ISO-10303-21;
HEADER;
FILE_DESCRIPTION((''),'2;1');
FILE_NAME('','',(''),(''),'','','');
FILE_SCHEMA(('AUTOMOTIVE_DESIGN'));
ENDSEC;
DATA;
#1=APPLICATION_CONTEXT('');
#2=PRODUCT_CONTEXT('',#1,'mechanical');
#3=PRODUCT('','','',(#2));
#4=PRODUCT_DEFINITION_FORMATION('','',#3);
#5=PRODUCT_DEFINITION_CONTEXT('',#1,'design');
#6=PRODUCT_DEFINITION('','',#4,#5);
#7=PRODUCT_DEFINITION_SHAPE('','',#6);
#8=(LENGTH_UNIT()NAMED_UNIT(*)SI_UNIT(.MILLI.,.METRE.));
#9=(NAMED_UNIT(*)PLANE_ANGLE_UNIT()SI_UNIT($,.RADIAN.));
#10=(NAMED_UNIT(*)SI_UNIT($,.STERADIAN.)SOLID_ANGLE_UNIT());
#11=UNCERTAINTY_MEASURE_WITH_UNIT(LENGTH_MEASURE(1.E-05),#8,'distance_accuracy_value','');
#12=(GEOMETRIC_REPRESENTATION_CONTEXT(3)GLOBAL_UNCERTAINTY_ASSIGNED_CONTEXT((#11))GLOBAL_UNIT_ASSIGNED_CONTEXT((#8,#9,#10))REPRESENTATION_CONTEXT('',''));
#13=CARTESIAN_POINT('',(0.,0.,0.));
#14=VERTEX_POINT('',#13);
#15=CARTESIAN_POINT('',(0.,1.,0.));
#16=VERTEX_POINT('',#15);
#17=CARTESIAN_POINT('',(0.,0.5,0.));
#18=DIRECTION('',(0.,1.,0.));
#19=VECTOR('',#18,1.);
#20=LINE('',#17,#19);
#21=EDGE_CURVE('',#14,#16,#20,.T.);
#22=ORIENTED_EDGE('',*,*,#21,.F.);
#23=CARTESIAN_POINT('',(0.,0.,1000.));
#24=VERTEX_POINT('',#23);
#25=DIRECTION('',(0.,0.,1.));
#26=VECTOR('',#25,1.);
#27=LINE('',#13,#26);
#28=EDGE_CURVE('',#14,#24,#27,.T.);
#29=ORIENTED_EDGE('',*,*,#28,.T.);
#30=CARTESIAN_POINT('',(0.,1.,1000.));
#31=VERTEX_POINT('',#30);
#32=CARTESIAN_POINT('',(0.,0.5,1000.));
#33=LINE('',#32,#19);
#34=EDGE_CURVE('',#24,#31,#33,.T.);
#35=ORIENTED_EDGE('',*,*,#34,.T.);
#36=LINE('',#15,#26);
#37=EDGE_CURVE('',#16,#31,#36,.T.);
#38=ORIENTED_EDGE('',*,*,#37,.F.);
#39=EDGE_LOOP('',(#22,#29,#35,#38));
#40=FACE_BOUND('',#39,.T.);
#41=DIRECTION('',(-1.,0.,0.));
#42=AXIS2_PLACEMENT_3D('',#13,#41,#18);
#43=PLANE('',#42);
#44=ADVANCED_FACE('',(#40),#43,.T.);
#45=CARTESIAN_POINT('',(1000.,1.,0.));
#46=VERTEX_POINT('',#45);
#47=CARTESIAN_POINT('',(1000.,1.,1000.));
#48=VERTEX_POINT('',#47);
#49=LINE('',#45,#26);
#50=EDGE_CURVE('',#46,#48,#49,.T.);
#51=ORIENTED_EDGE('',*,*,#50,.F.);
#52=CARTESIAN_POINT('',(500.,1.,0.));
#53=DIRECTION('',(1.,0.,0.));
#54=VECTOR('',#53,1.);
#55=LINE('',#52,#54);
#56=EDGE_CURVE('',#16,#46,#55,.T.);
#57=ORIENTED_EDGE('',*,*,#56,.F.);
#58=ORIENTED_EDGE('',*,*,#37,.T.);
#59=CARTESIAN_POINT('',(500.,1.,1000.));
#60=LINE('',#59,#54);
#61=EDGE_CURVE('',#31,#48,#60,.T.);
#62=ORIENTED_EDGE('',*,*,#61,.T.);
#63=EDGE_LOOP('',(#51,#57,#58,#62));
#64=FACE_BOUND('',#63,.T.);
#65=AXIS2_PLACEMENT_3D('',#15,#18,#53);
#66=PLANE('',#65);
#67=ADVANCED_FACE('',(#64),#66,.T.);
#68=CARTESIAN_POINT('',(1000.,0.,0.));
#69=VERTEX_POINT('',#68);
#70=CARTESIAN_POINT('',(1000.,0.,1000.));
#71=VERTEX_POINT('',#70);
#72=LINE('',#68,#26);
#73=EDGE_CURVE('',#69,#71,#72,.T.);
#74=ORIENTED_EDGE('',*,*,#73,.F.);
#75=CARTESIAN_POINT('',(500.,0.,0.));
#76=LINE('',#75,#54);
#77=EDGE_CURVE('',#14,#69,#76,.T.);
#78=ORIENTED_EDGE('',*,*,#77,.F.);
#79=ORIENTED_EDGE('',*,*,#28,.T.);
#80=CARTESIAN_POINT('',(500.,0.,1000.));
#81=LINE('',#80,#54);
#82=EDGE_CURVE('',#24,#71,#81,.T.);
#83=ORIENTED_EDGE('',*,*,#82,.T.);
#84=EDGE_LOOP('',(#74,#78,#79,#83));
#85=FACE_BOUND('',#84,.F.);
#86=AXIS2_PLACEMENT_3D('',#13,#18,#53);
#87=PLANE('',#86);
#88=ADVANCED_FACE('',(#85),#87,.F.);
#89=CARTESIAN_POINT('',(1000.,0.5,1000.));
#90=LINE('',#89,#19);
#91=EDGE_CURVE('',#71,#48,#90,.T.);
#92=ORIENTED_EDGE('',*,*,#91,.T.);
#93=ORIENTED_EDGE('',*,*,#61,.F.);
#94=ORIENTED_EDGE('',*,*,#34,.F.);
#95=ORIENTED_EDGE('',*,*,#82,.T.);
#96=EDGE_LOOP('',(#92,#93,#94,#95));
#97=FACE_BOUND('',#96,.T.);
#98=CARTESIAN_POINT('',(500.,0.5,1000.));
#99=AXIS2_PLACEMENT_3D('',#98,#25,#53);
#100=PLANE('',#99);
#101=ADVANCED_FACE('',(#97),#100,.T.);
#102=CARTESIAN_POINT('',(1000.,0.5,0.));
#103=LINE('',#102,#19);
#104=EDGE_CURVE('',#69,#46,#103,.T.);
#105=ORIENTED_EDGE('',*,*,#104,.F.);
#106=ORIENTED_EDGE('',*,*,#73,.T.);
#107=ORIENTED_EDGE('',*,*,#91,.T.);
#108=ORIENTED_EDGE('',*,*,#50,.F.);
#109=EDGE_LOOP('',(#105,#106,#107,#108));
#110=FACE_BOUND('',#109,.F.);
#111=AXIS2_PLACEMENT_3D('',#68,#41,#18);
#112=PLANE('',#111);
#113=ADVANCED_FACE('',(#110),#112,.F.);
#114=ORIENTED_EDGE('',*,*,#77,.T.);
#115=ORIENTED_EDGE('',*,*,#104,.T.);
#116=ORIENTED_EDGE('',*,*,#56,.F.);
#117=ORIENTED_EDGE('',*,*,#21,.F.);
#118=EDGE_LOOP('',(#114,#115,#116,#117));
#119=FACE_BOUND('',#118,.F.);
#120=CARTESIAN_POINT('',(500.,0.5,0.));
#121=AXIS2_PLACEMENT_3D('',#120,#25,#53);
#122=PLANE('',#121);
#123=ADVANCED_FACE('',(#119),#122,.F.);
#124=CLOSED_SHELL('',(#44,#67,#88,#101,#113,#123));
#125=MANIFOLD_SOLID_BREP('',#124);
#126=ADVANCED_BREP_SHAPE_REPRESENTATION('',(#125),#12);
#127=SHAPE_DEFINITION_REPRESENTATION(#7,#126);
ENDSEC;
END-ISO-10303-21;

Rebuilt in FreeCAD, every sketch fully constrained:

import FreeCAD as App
import Part
import Sketcher
from FreeCAD import Vector
Q = App.Units.Quantity

doc = App.newDocument("Part")
body = doc.addObject("PartDesign::Body", "Body")

# Sketch on XY plane
sketch1 = body.newObject("Sketcher::SketchObject", "Sketch")
sketch1.AttachmentSupport = (doc.getObject("XY_Plane"), [""])
sketch1.MapMode = "FlatFace"
sketch1.addGeometry(Part.LineSegment(Vector(0, 1, 0), Vector(0, 0, 0)), False)
sketch1.addGeometry(Part.LineSegment(Vector(0, 0, 0), Vector(1000, 0, 0)), False)
sketch1.addGeometry(Part.LineSegment(Vector(1000, 0, 0), Vector(1000, 1, 0)), False)
sketch1.addGeometry(Part.LineSegment(Vector(1000, 1, 0), Vector(0, 1, 0)), False)
sketch1.addConstraint(Sketcher.Constraint("Coincident", 0, 2, 1, 1))
sketch1.addConstraint(Sketcher.Constraint("Coincident", 1, 2, 2, 1))
sketch1.addConstraint(Sketcher.Constraint("Coincident", 2, 2, 3, 1))
sketch1.addConstraint(Sketcher.Constraint("Coincident", 3, 2, 0, 1))
sketch1.addConstraint(Sketcher.Constraint("Vertical", 0))
sketch1.addConstraint(Sketcher.Constraint("Horizontal", 1))
sketch1.addConstraint(Sketcher.Constraint("Vertical", 2))
sketch1.addConstraint(Sketcher.Constraint("Horizontal", 3))
sketch1.addConstraint(Sketcher.Constraint("Coincident", 0, 2, -1, 1))
sketch1.addConstraint(Sketcher.Constraint("DistanceX", 1, 1, 1, 2, Q("1000 mm")))
sketch1.addConstraint(Sketcher.Constraint("DistanceY", 0, 2, 0, 1, Q("1 mm")))
pad1 = body.newObject("PartDesign::Pad", "Pad")
pad1.Profile = sketch1
pad1.Length = 1000

doc.recompute()
